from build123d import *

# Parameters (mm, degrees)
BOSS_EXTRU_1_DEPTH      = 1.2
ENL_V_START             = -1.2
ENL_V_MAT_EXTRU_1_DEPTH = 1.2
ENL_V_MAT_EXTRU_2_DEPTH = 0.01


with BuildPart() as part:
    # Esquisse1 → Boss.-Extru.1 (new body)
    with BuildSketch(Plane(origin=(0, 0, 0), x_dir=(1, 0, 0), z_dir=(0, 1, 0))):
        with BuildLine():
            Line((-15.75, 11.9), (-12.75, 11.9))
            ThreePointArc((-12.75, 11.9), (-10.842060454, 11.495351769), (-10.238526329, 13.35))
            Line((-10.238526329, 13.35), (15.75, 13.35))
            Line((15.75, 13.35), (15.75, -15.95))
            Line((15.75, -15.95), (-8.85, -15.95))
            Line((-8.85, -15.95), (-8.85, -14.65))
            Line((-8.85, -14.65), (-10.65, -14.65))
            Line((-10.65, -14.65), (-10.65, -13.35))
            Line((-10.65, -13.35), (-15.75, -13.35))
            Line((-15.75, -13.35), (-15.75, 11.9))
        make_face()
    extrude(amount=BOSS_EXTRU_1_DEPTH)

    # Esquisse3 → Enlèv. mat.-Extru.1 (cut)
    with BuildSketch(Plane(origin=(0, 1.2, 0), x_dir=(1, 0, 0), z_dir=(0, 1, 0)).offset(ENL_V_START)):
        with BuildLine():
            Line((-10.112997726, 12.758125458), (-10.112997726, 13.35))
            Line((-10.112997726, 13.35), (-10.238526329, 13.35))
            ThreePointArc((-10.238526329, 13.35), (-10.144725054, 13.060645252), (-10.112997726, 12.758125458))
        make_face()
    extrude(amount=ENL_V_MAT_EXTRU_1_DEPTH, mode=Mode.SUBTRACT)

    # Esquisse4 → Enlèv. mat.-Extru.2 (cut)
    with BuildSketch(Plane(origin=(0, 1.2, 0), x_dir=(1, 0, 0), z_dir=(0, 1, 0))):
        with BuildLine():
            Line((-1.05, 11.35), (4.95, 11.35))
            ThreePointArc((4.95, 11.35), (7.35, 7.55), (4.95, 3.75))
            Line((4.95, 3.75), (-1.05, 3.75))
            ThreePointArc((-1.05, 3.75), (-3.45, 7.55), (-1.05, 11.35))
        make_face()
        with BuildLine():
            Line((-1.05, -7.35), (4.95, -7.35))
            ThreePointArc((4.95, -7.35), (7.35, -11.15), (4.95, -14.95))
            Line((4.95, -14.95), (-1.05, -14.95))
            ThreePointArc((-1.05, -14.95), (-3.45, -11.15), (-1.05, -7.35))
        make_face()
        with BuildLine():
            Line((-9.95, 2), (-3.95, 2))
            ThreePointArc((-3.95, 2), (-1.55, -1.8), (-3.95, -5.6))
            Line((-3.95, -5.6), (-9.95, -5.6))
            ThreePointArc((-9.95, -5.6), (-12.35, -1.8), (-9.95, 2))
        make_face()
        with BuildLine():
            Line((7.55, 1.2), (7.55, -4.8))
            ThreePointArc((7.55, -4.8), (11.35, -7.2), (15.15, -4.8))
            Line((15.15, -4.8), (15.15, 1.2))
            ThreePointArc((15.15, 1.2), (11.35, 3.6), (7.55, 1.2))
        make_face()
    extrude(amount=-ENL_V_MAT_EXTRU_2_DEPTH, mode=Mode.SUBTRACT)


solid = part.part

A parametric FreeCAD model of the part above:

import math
import FreeCAD as App
import Part
import Sketcher
from FreeCAD import Vector
Q = App.Units.Quantity

doc = App.newDocument("Part")
body = doc.addObject("PartDesign::Body", "Body")

sketch1 = doc.addObject("Sketcher::SketchObject", "Sketch")
body.addObject(sketch1)
sketch1.AttachmentSupport = (doc.XZ_Plane, [""])
sketch1.MapMode = "FlatFace"
sketch1.addGeometry(Part.LineSegment(Vector(-12.8, -11.9, 0), Vector(-15.8, -11.9, 0)), False)
sketch1.addGeometry(Part.LineSegment(Vector(-15.8, -11.9, 0), Vector(-15.8, 13.3, 0)), False)
sketch1.addGeometry(Part.LineSegment(Vector(-15.8, 13.3, 0), Vector(-10.7, 13.3, 0)), False)
sketch1.addGeometry(Part.LineSegment(Vector(-10.7, 13.3, 0), Vector(-10.7, 14.7, 0)), False)
sketch1.addGeometry(Part.LineSegment(Vector(-10.7, 14.7, 0), Vector(-8.8, 14.7, 0)), False)
sketch1.addGeometry(Part.LineSegment(Vector(-8.8, 14.7, 0), Vector(-8.8, 15.9, 0)), False)
sketch1.addGeometry(Part.LineSegment(Vector(-8.8, 15.9, 0), Vector(15.8, 15.9, 0)), False)
sketch1.addGeometry(Part.LineSegment(Vector(15.8, 15.9, 0), Vector(15.8, -13.3, 0)), False)
sketch1.addGeometry(Part.LineSegment(Vector(15.8, -13.3, 0), Vector(-10.2, -13.3, 0)), False)
sketch1.addGeometry(Part.ArcOfCircle(Part.Circle(Vector(-11.6, -12.8, 0), Vector(0, 0, 1), 1.5), math.radians(-24), math.radians(144)), False)
sketch1.addConstraint(Sketcher.Constraint("Coincident", 0, 2, 1, 1))
sketch1.addConstraint(Sketcher.Constraint("Coincident", 1, 2, 2, 1))
sketch1.addConstraint(Sketcher.Constraint("Coincident", 2, 2, 3, 1))
sketch1.addConstraint(Sketcher.Constraint("Coincident", 3, 2, 4, 1))
sketch1.addConstraint(Sketcher.Constraint("Coincident", 4, 2, 5, 1))
sketch1.addConstraint(Sketcher.Constraint("Coincident", 5, 2, 6, 1))
sketch1.addConstraint(Sketcher.Constraint("Coincident", 6, 2, 7, 1))
sketch1.addConstraint(Sketcher.Constraint("Coincident", 7, 2, 8, 1))
sketch1.addConstraint(Sketcher.Constraint("Coincident", 8, 2, 9, 1))
sketch1.addConstraint(Sketcher.Constraint("Coincident", 9, 2, 0, 1))
sketch1.addConstraint(Sketcher.Constraint("Horizontal", 0))
sketch1.addConstraint(Sketcher.Constraint("Vertical", 1))
sketch1.addConstraint(Sketcher.Constraint("Horizontal", 2))
sketch1.addConstraint(Sketcher.Constraint("Vertical", 3))
sketch1.addConstraint(Sketcher.Constraint("Horizontal", 4))
sketch1.addConstraint(Sketcher.Constraint("Vertical", 5))
sketch1.addConstraint(Sketcher.Constraint("Horizontal", 6))
sketch1.addConstraint(Sketcher.Constraint("Vertical", 7))
sketch1.addConstraint(Sketcher.Constraint("Horizontal", 8))
sketch1.addConstraint(Sketcher.Constraint("Symmetric", 1, 2, 7, 2, -1, 1))
sketch1.addConstraint(Sketcher.Constraint("Equal", 3, 5))
sketch1.addConstraint(Sketcher.Constraint("DistanceX", 0, 2, 0, 1, Q("3 mm")))
sketch1.addConstraint(Sketcher.Constraint("DistanceX", 2, 1, 2, 2, Q("5.1 mm")))
sketch1.addConstraint(Sketcher.Constraint("DistanceX", 4, 1, 4, 2, Q("1.8 mm")))
sketch1.addConstraint(Sketcher.Constraint("DistanceX", 6, 1, 6, 2, Q("24.6 mm")))
sketch1.addConstraint(Sketcher.Constraint("DistanceY", 3, 1, 3, 2, Q("1.3 mm")))
sketch1.addConstraint(Sketcher.Constraint("DistanceY", 7, 2, 7, 1, Q("29.3 mm")))
sketch1.addConstraint(Sketcher.Constraint("DistanceY", 1, 1, 1, 2, Q("25.25 mm")))
sketch1.addConstraint(Sketcher.Constraint("Radius", 9, Q("1.458125 mm")))
sketch1.addConstraint(Sketcher.Constraint("DistanceX", 8, 2, 8, 1, Q("25.988526 mm")))
pad1 = doc.addObject("PartDesign::Pad", "Pad")
body.addObject(pad1)
pad1.Profile = sketch1
pad1.Length = 1.2
pad1.Reversed = True

sketch2 = doc.addObject("Sketcher::SketchObject", "Sketch001")
body.addObject(sketch2)
sketch2.AttachmentSupport = (doc.XZ_Plane, [""])
sketch2.MapMode = "FlatFace"
sketch2.addGeometry(Part.LineSegment(Vector(-10.11, -12.76, 0), Vector(-10.11, -13.35, 0)), False)
sketch2.addGeometry(Part.LineSegment(Vector(-10.11, -13.35, 0), Vector(-10.24, -13.35, 0)), False)
sketch2.addGeometry(Part.ArcOfCircle(Part.Circle(Vector(-11.57, -12.76, 0), Vector(0, 0, 1), 1.46), math.radians(-24), math.radians(0)), False)
sketch2.addConstraint(Sketcher.Constraint("Coincident", 0, 2, 1, 1))
sketch2.addConstraint(Sketcher.Constraint("Coincident", 1, 2, 2, 1))
sketch2.addConstraint(Sketcher.Constraint("Tangent", 2, 2, 0, 1))
sketch2.addConstraint(Sketcher.Constraint("Vertical", 0))
sketch2.addConstraint(Sketcher.Constraint("Horizontal", 1))
sketch2.addConstraint(Sketcher.Constraint("DistanceY", 0, 2, -1, 1, Q("13.35 mm")))
sketch2.addConstraint(Sketcher.Constraint("Radius", 2, Q("1.458125 mm")))
sketch2.addConstraint(Sketcher.Constraint("DistanceX", 1, 2, 1, 1, Q("0.125529 mm")))
sketch2.addConstraint(Sketcher.Constraint("DistanceX", 2, 3, -1, 1, Q("11.571123 mm")))
pocket1 = doc.addObject("PartDesign::Pocket", "Pocket")
body.addObject(pocket1)
pocket1.Profile = sketch2
pocket1.Length = 1.2

sketch3 = doc.addObject("Sketcher::SketchObject", "Sketch002")
body.addObject(sketch3)
sketch3.AttachmentSupport = (doc.XZ_Plane, [""])
sketch3.MapMode = "FlatFace"
sketch3.AttachmentOffset = App.Placement(Vector(0, 0, -1.2), App.Rotation())
sketch3.addGeometry(Part.LineSegment(Vector(5, -11.3, 0), Vector(-1.1, -11.3, 0)), False)
sketch3.addGeometry(Part.ArcOfCircle(Part.Circle(Vector(0.8, -7.5, 0), Vector(0, 0, 1), 4.2), math.radians(115), math.radians(245)), False)
sketch3.addGeometry(Part.LineSegment(Vector(-1.1, -3.8, 0), Vector(5, -3.8, 0)), False)
sketch3.addGeometry(Part.ArcOfCircle(Part.Circle(Vector(3.1, -7.5, 0), Vector(0, 0, 1), 4.2), math.radians(-65), math.radians(65)), False)
sketch3.addGeometry(Part.LineSegment(Vector(5, 7.3, 0), Vector(-1.1, 7.3, 0)), False)
sketch3.addGeometry(Part.ArcOfCircle(Part.Circle(Vector(0.8, 11.2, 0), Vector(0, 0, 1), 4.2), math.radians(115), math.radians(245)), False)
sketch3.addGeometry(Part.LineSegment(Vector(-1.1, 14.9, 0), Vector(5, 14.9, 0)), False)
sketch3.addGeometry(Part.ArcOfCircle(Part.Circle(Vector(3.1, 11.2, 0), Vector(0, 0, 1), 4.2), math.radians(-65), math.radians(65)), False)
sketch3.addGeometry(Part.LineSegment(Vector(-4, -2, 0), Vector(-9.9, -2, 0)), False)
sketch3.addGeometry(Part.ArcOfCircle(Part.Circle(Vector(-8.1, 1.8, 0), Vector(0, 0, 1), 4.2), math.radians(115), math.radians(245)), False)
sketch3.addGeometry(Part.LineSegment(Vector(-9.9, 5.6, 0), Vector(-4, 5.6, 0)), False)
sketch3.addGeometry(Part.ArcOfCircle(Part.Circle(Vector(-5.8, 1.8, 0), Vector(0, 0, 1), 4.2), math.radians(-65), math.radians(65)), False)
sketch3.addGeometry(Part.LineSegment(Vector(7.5, -1.2, 0), Vector(7.5, 4.8, 0)), False)
sketch3.addGeometry(Part.ArcOfCircle(Part.Circle(Vector(11.3, 3, 0), Vector(0, 0, 1), 4.2), math.radians(25), math.radians(155)), False)
sketch3.addGeometry(Part.LineSegment(Vector(15.2, 4.8, 0), Vector(15.2, -1.2, 0)), False)
sketch3.addGeometry(Part.ArcOfCircle(Part.Circle(Vector(11.3, 0.6, 0), Vector(0, 0, 1), 4.2), math.radians(-155), math.radians(-25)), False)
sketch3.addConstraint(Sketcher.Constraint("Coincident", 0, 2, 1, 2))
sketch3.addConstraint(Sketcher.Constraint("Coincident", 1, 1, 2, 1))
sketch3.addConstraint(Sketcher.Constraint("Coincident", 2, 2, 3, 2))
sketch3.addConstraint(Sketcher.Constraint("Coincident", 3, 1, 0, 1))
sketch3.addConstraint(Sketcher.Constraint("Coincident", 4, 2, 5, 2))
sketch3.addConstraint(Sketcher.Constraint("Coincident", 5, 1, 6, 1))
sketch3.addConstraint(Sketcher.Constraint("Coincident", 6, 2, 7, 2))
sketch3.addConstraint(Sketcher.Constraint("Coincident", 7, 1, 4, 1))
sketch3.addConstraint(Sketcher.Constraint("Coincident", 8, 2, 9, 2))
sketch3.addConstraint(Sketcher.Constraint("Coincident", 9, 1, 10, 1))
sketch3.addConstraint(Sketcher.Constraint("Coincident", 10, 2, 11, 2))
sketch3.addConstraint(Sketcher.Constraint("Coincident", 11, 1, 8, 1))
sketch3.addConstraint(Sketcher.Constraint("Coincident", 12, 2, 13, 2))
sketch3.addConstraint(Sketcher.Constraint("Coincident", 13, 1, 14, 1))
sketch3.addConstraint(Sketcher.Constraint("Coincident", 14, 2, 15, 2))
sketch3.addConstraint(Sketcher.Constraint("Coincident", 15, 1, 12, 1))
sketch3.addConstraint(Sketcher.Constraint("Horizontal", 0))
sketch3.addConstraint(Sketcher.Constraint("Horizontal", 2))
sketch3.addConstraint(Sketcher.Constraint("Horizontal", 4))
sketch3.addConstraint(Sketcher.Constraint("Horizontal", 6))
sketch3.addConstraint(Sketcher.Constraint("Horizontal", 8))
sketch3.addConstraint(Sketcher.Constraint("Horizontal", 10))
sketch3.addConstraint(Sketcher.Constraint("Vertical", 12))
sketch3.addConstraint(Sketcher.Constraint("Vertical", 14))
sketch3.addConstraint(Sketcher.Constraint("Equal", 1, 3))
sketch3.addConstraint(Sketcher.Constraint("Equal", 3, 5))
sketch3.addConstraint(Sketcher.Constraint("Equal", 5, 7))
sketch3.addConstraint(Sketcher.Constraint("Equal", 7, 9))
sketch3.addConstraint(Sketcher.Constraint("Equal", 9, 11))
sketch3.addConstraint(Sketcher.Constraint("Equal", 11, 13))
sketch3.addConstraint(Sketcher.Constraint("Equal", 13, 15))
sketch3.addConstraint(Sketcher.Constraint("Horizontal", 1, 3, 3, 3))
sketch3.addConstraint(Sketcher.Constraint("Horizontal", 5, 3, 7, 3))
sketch3.addConstraint(Sketcher.Constraint("Horizontal", 9, 3, 11, 3))
sketch3.addConstraint(Sketcher.Constraint("Horizontal", 12, 2, 13, 1))
sketch3.addConstraint(Sketcher.Constraint("Horizontal", 14, 2, 15, 1))
sketch3.addConstraint(Sketcher.Constraint("Vertical", 1, 3, 5, 3))
sketch3.addConstraint(Sketcher.Constraint("Vertical", 3, 3, 7, 3))
sketch3.addConstraint(Sketcher.Constraint("Vertical", 0, 2, 1, 1))
sketch3.addConstraint(Sketcher.Constraint("Vertical", 1, 1, 4, 2))
sketch3.addConstraint(Sketcher.Constraint("Vertical", 4, 2, 5, 1))
sketch3.addConstraint(Sketcher.Constraint("Vertical", 8, 2, 9, 1))
sketch3.addConstraint(Sketcher.Constraint("Equal", 6, 8))
sketch3.addConstraint(Sketcher.Constraint("Equal", 10, 12))
sketch3.addConstraint(Sketcher.Constraint("DistanceX", 0, 2, 0, 1, Q("6 mm")))
sketch3.addConstraint(Sketcher.Constraint("DistanceY", 8, 2, -1, 1, Q("2 mm")))
sketch3.addConstraint(Sketcher.Constraint("DistanceY", -1, 1, 9, 3, Q("1.8 mm")))
sketch3.addConstraint(Sketcher.Constraint("DistanceY", -1, 1, 12, 2, Q("4.8 mm")))
sketch3.addConstraint(Sketcher.Constraint("DistanceY", 1, 3, 5, 3, Q("18.7 mm")))
sketch3.addConstraint(Sketcher.Constraint("DistanceX", 9, 3, 1, 3, Q("8.9 mm")))
sketch3.addConstraint(Sketcher.Constraint("DistanceX", 11, 3, 3, 3, Q("8.9 mm")))
sketch3.addConstraint(Sketcher.Constraint("DistanceX", 0, 2, 15, 3, Q("12.4 mm")))
sketch3.addConstraint(Sketcher.Constraint("DistanceX", 7, 1, 12, 2, Q("2.6 mm")))
sketch3.addConstraint(Sketcher.Constraint("DistanceY", 1, 3, -1, 1, Q("7.55 mm")))
sketch3.addConstraint(Sketcher.Constraint("DistanceX", -1, 1, 13, 3, Q("11.35 mm")))
sketch3.addConstraint(Sketcher.Constraint("Radius", 1, Q("4.208333 mm")))
pocket2 = doc.addObject("PartDesign::Pocket", "Pocket001")
body.addObject(pocket2)
pocket2.Profile = sketch3
pocket2.Length = 0.01
pocket2.Reversed = True

doc.recompute()
